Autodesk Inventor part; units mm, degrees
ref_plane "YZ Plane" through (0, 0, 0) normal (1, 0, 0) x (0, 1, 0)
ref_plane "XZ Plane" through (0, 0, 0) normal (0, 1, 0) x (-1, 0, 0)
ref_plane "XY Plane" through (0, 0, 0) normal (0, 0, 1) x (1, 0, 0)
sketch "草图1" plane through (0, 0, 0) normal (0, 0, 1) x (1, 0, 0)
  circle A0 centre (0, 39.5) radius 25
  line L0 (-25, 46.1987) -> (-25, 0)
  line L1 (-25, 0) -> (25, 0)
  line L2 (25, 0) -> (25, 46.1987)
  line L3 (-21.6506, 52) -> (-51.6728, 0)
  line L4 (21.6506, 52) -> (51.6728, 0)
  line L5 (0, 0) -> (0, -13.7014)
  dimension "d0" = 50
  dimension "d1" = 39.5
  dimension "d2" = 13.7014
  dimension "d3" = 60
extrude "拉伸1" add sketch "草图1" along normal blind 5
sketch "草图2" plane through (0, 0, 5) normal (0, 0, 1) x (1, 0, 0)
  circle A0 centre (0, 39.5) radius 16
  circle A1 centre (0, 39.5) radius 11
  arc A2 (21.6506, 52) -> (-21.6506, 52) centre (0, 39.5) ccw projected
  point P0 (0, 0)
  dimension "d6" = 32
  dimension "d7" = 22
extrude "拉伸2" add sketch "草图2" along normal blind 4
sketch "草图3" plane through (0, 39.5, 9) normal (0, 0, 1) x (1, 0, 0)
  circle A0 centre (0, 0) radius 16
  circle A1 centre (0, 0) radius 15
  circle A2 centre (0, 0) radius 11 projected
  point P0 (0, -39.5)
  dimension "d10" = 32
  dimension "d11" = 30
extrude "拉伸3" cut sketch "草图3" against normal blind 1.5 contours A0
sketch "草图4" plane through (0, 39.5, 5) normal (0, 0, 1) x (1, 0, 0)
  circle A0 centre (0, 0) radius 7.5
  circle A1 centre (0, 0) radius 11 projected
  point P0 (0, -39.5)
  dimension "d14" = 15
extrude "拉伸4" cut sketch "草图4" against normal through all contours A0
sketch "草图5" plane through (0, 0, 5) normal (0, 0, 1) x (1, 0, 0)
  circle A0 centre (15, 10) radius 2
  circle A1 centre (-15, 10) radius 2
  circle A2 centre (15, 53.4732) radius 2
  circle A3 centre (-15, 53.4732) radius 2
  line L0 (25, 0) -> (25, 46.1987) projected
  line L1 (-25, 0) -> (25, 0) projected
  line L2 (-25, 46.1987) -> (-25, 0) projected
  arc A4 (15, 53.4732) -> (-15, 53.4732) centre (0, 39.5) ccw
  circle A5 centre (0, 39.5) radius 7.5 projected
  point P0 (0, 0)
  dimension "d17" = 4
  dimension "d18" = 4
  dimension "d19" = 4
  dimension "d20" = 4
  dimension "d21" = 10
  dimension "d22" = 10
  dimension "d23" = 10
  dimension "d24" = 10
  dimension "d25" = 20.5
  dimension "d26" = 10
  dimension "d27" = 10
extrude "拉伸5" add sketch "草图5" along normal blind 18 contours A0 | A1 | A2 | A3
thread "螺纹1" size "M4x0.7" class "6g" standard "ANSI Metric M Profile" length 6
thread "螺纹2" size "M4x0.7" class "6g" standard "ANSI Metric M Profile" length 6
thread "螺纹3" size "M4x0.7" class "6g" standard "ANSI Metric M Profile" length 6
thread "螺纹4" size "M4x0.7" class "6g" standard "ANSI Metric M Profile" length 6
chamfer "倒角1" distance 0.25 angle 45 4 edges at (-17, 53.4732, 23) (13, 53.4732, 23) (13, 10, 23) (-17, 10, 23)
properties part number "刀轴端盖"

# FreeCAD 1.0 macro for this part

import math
import FreeCAD as App
import Part
import Sketcher
from FreeCAD import Vector
Q = App.Units.Quantity


def edges_at(feature, points):
    """Names of the edges that pass closest to the given points."""
    edges = feature.Shape.Edges
    near = lambda p: min(range(len(edges)), key=lambda i: edges[i].distToShape(Part.Vertex(*p))[0])
    return sorted({f"Edge{near(p) + 1}" for p in points})

doc = App.newDocument("Part")
body = doc.addObject("PartDesign::Body", "Body")

sketch1 = body.newObject("Sketcher::SketchObject", "Sketch")
sketch1.AttachmentSupport = (doc.getObject("XY_Plane"), [""])
sketch1.MapMode = "FlatFace"
sketch1.addGeometry(Part.ArcOfCircle(Part.Circle(Vector(0, 40, 0), Vector(0, 0, 1), 25), math.radians(30), math.radians(150)), False)
sketch1.addGeometry(Part.LineSegment(Vector(-22, 52, 0), Vector(-25, 46, 0)), False)
sketch1.addGeometry(Part.LineSegment(Vector(-25, 46, 0), Vector(-25, 0, 0)), False)
sketch1.addGeometry(Part.LineSegment(Vector(-25, 0, 0), Vector(25, 0, 0)), False)
sketch1.addGeometry(Part.LineSegment(Vector(25, 0, 0), Vector(25, 46, 0)), False)
sketch1.addGeometry(Part.LineSegment(Vector(25, 46, 0), Vector(22, 52, 0)), False)
sketch1.addConstraint(Sketcher.Constraint("Tangent", 0, 2, 1, 1))
sketch1.addConstraint(Sketcher.Constraint("Coincident", 1, 2, 2, 1))
sketch1.addConstraint(Sketcher.Constraint("Coincident", 2, 2, 3, 1))
sketch1.addConstraint(Sketcher.Constraint("Coincident", 3, 2, 4, 1))
sketch1.addConstraint(Sketcher.Constraint("Coincident", 4, 2, 5, 1))
sketch1.addConstraint(Sketcher.Constraint("Tangent", 5, 2, 0, 1))
sketch1.addConstraint(Sketcher.Constraint("Vertical", 2))
sketch1.addConstraint(Sketcher.Constraint("Horizontal", 3))
sketch1.addConstraint(Sketcher.Constraint("Vertical", 4))
sketch1.addConstraint(Sketcher.Constraint("Symmetric", 2, 2, 3, 2, -1, 1))
sketch1.addConstraint(Sketcher.Constraint("Symmetric", 0, 2, 5, 2, -2))
sketch1.addConstraint(Sketcher.Constraint("Radius", 0, Q("25 mm")))
sketch1.addConstraint(Sketcher.Constraint("DistanceX", 3, 1, 3, 2, Q("50 mm")))
sketch1.addConstraint(Sketcher.Constraint("DistanceY", -1, 1, 0, 3, Q("39.5 mm")))
sketch1.addConstraint(Sketcher.Constraint("Angle", 1, Q("-120 deg")))
pad1 = body.newObject("PartDesign::Pad", "Pad")
pad1.Profile = sketch1
pad1.Length = 5

sketch2 = body.newObject("Sketcher::SketchObject", "Sketch001")
sketch2.AttachmentSupport = (doc.getObject("XY_Plane"), [""])
sketch2.MapMode = "FlatFace"
sketch2.AttachmentOffset = App.Placement(Vector(0, 0, 5), App.Rotation())
sketch2.addGeometry(Part.Circle(Vector(0, 40, 0), Vector(0, 0, 1), 16), False)
sketch2.addGeometry(Part.Circle(Vector(0, 40, 0), Vector(0, 0, 1), 11), False)
sketch2.addConstraint(Sketcher.Constraint("Coincident", 1, 3, 0, 3))
sketch2.addConstraint(Sketcher.Constraint("PointOnObject", 0, 3, -2))
sketch2.addConstraint(Sketcher.Constraint("Diameter", 0, Q("32 mm")))
sketch2.addConstraint(Sketcher.Constraint("Diameter", 1, Q("22 mm")))
sketch2.addConstraint(Sketcher.Constraint("DistanceY", -1, 1, 0, 3, Q("39.5 mm")))
pad2 = body.newObject("PartDesign::Pad", "Pad001")
pad2.Profile = sketch2
pad2.Length = 4

sketch3 = body.newObject("Sketcher::SketchObject", "Sketch002")
sketch3.AttachmentSupport = (doc.getObject("XY_Plane"), [""])
sketch3.MapMode = "FlatFace"
sketch3.AttachmentOffset = App.Placement(Vector(0, 0, 9), App.Rotation())
sketch3.addGeometry(Part.Circle(Vector(0, 40, 0), Vector(0, 0, 1), 16), False)
sketch3.addGeometry(Part.Circle(Vector(0, 40, 0), Vector(0, 0, 1), 15), False)
sketch3.addConstraint(Sketcher.Constraint("Coincident", 1, 3, 0, 3))
sketch3.addConstraint(Sketcher.Constraint("PointOnObject", 0, 3, -2))
sketch3.addConstraint(Sketcher.Constraint("Diameter", 0, Q("32 mm")))
sketch3.addConstraint(Sketcher.Constraint("Diameter", 1, Q("30 mm")))
sketch3.addConstraint(Sketcher.Constraint("DistanceY", -1, 1, 0, 3, Q("39.5 mm")))
pocket1 = body.newObject("PartDesign::Pocket", "Pocket")
pocket1.Profile = sketch3
pocket1.Length = 1.5

sketch4 = body.newObject("Sketcher::SketchObject", "Sketch003")
sketch4.AttachmentSupport = (doc.getObject("XY_Plane"), [""])
sketch4.MapMode = "FlatFace"
sketch4.AttachmentOffset = App.Placement(Vector(0, 0, 5), App.Rotation())
sketch4.addGeometry(Part.Circle(Vector(0, 40, 0), Vector(0, 0, 1), 8), False)
sketch4.addConstraint(Sketcher.Constraint("PointOnObject", 0, 3, -2))
sketch4.addConstraint(Sketcher.Constraint("Diameter", 0, Q("15 mm")))
sketch4.addConstraint(Sketcher.Constraint("DistanceY", -1, 1, 0, 3, Q("39.5 mm")))
pocket2 = body.newObject("PartDesign::Pocket", "Pocket001")
pocket2.Profile = sketch4
pocket2.Type = "ThroughAll"

sketch5 = body.newObject("Sketcher::SketchObject", "Sketch004")
sketch5.AttachmentSupport = (doc.getObject("XY_Plane"), [""])
sketch5.MapMode = "FlatFace"
sketch5.AttachmentOffset = App.Placement(Vector(0, 0, 5), App.Rotation())
sketch5.addGeometry(Part.Circle(Vector(15, 10, 0), Vector(0, 0, 1), 2), False)
sketch5.addGeometry(Part.Circle(Vector(-15, 10, 0), Vector(0, 0, 1), 2), False)
sketch5.addGeometry(Part.Circle(Vector(15, 53.5, 0), Vector(0, 0, 1), 2), False)
sketch5.addGeometry(Part.Circle(Vector(-15, 53.5, 0), Vector(0, 0, 1), 2), False)
sketch5.addConstraint(Sketcher.Constraint("Equal", 0, 1))
sketch5.addConstraint(Sketcher.Constraint("Equal", 1, 2))
sketch5.addConstraint(Sketcher.Constraint("Equal", 2, 3))
sketch5.addConstraint(Sketcher.Constraint("Symmetric", 0, 3, 1, 3, -2))
sketch5.addConstraint(Sketcher.Constraint("Symmetric", 2, 3, 3, 3, -2))
sketch5.addConstraint(Sketcher.Constraint("Vertical", 0, 3, 2, 3))
sketch5.addConstraint(Sketcher.Constraint("Diameter", 0, Q("4 mm")))
sketch5.addConstraint(Sketcher.Constraint("DistanceY", -1, 1, 0, 3, Q("10 mm")))
sketch5.addConstraint(Sketcher.Constraint("DistanceX", -1, 1, 0, 3, Q("15 mm")))
sketch5.addConstraint(Sketcher.Constraint("DistanceY", -1, 1, 2, 3, Q("53.4732 mm")))
pad3 = body.newObject("PartDesign::Pad", "Pad002")
pad3.Profile = sketch5
pad3.Length = 18
doc.recompute()

chamfer = body.newObject("PartDesign::Chamfer", "Chamfer")
chamfer.Base = (pad3, edges_at(pad3, [
    (-17, 53.473, 23),
    (13, 53.473, 23),
    (13, 10, 23),
    (-17, 10, 23),
]))
chamfer.Size = 0.25

doc.recompute()
